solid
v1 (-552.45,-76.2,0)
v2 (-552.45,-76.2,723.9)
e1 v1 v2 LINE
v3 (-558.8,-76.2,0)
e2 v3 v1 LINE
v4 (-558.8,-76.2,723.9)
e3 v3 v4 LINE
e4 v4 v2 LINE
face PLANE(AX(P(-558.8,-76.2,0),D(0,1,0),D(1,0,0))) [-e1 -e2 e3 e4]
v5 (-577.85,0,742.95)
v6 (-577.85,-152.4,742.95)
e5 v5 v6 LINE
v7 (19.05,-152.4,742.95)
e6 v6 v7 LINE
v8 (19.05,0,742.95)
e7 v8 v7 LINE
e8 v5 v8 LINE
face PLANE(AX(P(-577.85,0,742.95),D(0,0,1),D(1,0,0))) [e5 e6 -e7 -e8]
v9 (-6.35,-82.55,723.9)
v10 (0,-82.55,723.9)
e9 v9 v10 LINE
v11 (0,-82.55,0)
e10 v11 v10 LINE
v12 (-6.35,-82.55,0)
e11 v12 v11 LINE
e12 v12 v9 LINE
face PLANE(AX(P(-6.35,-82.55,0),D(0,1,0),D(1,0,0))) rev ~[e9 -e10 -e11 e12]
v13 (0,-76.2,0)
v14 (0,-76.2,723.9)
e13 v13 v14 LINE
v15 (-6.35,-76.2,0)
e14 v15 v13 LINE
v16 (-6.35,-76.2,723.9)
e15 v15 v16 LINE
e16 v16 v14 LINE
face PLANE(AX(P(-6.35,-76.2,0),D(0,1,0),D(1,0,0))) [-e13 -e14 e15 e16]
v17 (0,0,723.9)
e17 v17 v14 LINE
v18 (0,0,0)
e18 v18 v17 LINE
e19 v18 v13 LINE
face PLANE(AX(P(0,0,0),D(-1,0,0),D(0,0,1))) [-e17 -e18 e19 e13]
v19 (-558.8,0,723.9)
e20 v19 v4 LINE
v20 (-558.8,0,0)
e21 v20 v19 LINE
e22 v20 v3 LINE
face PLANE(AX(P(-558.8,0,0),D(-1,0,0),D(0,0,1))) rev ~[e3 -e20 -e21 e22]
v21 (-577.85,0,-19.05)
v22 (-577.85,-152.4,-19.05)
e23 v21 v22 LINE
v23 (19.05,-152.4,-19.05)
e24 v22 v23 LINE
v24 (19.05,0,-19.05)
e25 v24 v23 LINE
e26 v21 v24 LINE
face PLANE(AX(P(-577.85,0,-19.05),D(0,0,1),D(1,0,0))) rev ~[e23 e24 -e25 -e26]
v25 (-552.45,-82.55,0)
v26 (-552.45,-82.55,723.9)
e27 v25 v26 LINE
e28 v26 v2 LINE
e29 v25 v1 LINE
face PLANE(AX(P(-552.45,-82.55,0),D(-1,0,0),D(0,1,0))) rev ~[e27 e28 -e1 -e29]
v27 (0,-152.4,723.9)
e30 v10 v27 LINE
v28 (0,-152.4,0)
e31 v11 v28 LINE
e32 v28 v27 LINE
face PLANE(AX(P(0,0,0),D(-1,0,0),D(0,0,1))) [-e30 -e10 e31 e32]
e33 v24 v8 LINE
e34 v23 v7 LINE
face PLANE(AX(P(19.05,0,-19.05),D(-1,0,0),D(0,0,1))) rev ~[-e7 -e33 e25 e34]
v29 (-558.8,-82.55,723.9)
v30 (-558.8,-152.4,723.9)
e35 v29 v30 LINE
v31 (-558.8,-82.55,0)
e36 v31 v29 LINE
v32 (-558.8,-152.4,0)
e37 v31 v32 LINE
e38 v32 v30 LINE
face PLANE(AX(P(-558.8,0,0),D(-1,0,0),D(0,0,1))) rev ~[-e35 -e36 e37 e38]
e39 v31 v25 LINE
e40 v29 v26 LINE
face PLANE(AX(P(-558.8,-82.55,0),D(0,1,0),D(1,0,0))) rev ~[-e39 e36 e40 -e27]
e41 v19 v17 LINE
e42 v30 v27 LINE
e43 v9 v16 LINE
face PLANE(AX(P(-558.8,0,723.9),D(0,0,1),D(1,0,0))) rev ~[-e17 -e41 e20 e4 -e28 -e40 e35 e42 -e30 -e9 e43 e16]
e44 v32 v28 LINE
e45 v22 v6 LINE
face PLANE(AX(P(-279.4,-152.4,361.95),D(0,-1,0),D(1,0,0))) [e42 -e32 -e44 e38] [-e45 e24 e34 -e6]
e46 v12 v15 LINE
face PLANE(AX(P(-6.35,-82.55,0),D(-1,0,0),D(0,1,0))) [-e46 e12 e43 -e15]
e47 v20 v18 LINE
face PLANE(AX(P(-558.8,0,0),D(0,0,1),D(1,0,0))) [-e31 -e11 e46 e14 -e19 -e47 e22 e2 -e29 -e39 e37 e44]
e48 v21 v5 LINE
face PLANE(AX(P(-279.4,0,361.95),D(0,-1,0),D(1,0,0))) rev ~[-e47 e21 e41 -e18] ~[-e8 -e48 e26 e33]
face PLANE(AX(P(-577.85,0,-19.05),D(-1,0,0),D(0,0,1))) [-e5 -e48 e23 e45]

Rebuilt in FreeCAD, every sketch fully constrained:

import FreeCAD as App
import Part
import Sketcher
Q = App.Units.Quantity


def add_polygon(sketch, points):
    """Adds a closed chain of lines whose ends are joined by coincident constraints."""
    first, n = sketch.GeometryCount, len(points)
    for a, b in zip(points, points[1:] + points[:1]):
        sketch.addGeometry(Part.LineSegment(App.Vector(*a, 0), App.Vector(*b, 0)), False)
    for i in range(n):
        sketch.addConstraint(Sketcher.Constraint("Coincident", first + i, 2, first + (i + 1) % n, 1))

doc = App.newDocument("Part")
body = doc.addObject("PartDesign::Body", "Body")

# Sketch on XZ plane
sketch1 = body.newObject("Sketcher::SketchObject", "Sketch")
sketch1.AttachmentSupport = (doc.getObject("XZ_Plane"), [""])
sketch1.MapMode = "FlatFace"
add_polygon(sketch1, [(-577.85, 742.95), (-577.85, -19.05), (19.05, -19.05), (19.05, 742.95)])  # lines 0-3
add_polygon(sketch1, [(0, 0), (-558.8, 0), (-558.8, 723.9), (0, 723.9)])  # lines 4-7
sketch1.addConstraint([
    Sketcher.Constraint("Vertical", 0),
    Sketcher.Constraint("Horizontal", 1),
    Sketcher.Constraint("Vertical", 2),
    Sketcher.Constraint("Horizontal", 3),
    Sketcher.Constraint("Horizontal", 4),
    Sketcher.Constraint("Vertical", 5),
    Sketcher.Constraint("Horizontal", 6),
    Sketcher.Constraint("Vertical", 7),
    Sketcher.Constraint("Coincident", 7, 2, -1, 1),
    Sketcher.Constraint("DistanceX", 4, 2, 4, 1, Q("22 in")),
    Sketcher.Constraint("DistanceY", 0, 2, 0, 1, Q("30 in")),
    Sketcher.Constraint("DistanceX", 1, 1, 1, 2, Q("23.5 in")),
    Sketcher.Constraint("DistanceY", 5, 1, 5, 2, Q("28.5 in")),
    Sketcher.Constraint("DistanceX", 0, 2, -1, 1, Q("22.75 in")),
    Sketcher.Constraint("DistanceY", 0, 2, -1, 1, Q("0.75 in")),
])
pad1 = body.newObject("PartDesign::Pad", "Pad")
pad1.Profile = sketch1
pad1.Length = Q("6 in")

# Sketch on XY plane
sketch2 = body.newObject("Sketcher::SketchObject", "Sketch001")
sketch2.AttachmentSupport = (doc.getObject("XY_Plane"), [""])
sketch2.MapMode = "FlatFace"
add_polygon(sketch2, [(-558.8, -76.2), (-558.8, -82.55), (-552.45, -82.55), (-552.45, -76.2)])  # lines 0-3
add_polygon(sketch2, [(-6.35, -76.2), (-6.35, -82.55), (0, -82.55), (0, -76.2)])  # lines 4-7
sketch2.addConstraint([
    Sketcher.Constraint("Vertical", 0),
    Sketcher.Constraint("Horizontal", 1),
    Sketcher.Constraint("Vertical", 2),
    Sketcher.Constraint("Horizontal", 3),
    Sketcher.Constraint("Vertical", 4),
    Sketcher.Constraint("Horizontal", 5),
    Sketcher.Constraint("Vertical", 6),
    Sketcher.Constraint("Horizontal", 7),
    Sketcher.Constraint("PointOnObject", 5, 2, -2),
    Sketcher.Constraint("Horizontal", 1, 2, 4, 2),
    Sketcher.Constraint("Horizontal", 3, 2, 6, 2),
    Sketcher.Constraint("Equal", 3, 5),
    Sketcher.Constraint("Equal", 7, 0),
    Sketcher.Constraint("DistanceX", 0, 2, -1, 1, Q("22 in")),
    Sketcher.Constraint("DistanceY", 2, 2, -1, 1, Q("3 in")),
    Sketcher.Constraint("DistanceX", 1, 1, 1, 2, Q("0.25 in")),
])
pad2 = body.newObject("PartDesign::Pad", "Pad001")
pad2.Profile = sketch2
pad2.Type = "UpToLast"

doc.recompute()
